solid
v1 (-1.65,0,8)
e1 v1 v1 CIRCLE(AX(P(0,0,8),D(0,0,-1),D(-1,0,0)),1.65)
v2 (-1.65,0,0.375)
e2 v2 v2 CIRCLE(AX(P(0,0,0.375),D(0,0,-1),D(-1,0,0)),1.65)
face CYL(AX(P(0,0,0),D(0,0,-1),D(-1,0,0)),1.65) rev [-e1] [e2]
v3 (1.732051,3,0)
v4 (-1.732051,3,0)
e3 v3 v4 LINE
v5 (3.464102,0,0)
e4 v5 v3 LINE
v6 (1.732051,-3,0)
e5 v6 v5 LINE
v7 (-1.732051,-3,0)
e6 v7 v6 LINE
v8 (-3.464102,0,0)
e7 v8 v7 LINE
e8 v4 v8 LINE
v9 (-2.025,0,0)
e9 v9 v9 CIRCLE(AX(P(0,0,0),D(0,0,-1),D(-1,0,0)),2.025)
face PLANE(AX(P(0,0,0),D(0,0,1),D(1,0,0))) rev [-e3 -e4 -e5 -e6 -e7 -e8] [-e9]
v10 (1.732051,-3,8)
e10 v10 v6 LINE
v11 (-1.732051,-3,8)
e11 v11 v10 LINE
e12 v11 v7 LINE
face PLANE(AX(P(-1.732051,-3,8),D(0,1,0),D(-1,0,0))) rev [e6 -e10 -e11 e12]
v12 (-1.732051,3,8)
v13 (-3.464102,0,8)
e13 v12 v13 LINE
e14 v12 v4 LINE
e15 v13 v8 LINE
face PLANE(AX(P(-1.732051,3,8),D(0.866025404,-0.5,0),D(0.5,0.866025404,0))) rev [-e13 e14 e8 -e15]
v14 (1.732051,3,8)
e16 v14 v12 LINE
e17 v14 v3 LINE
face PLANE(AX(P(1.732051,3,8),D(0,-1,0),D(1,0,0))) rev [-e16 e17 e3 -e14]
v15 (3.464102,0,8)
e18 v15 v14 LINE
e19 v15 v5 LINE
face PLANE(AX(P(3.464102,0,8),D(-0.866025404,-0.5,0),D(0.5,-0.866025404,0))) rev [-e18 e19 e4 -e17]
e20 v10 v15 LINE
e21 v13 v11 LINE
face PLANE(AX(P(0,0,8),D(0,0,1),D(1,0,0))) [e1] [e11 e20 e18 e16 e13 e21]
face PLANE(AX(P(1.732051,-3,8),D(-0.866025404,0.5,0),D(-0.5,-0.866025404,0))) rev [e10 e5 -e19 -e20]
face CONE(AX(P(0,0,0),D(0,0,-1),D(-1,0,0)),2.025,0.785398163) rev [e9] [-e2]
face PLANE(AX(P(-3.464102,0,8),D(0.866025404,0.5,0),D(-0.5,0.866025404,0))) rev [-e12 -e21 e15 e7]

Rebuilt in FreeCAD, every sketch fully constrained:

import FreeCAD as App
import Part
import Sketcher
Q = App.Units.Quantity


def add_polygon(sketch, points):
    """Adds a closed chain of lines whose ends are joined by coincident constraints."""
    first, n = sketch.GeometryCount, len(points)
    for a, b in zip(points, points[1:] + points[:1]):
        sketch.addGeometry(Part.LineSegment(App.Vector(*a, 0), App.Vector(*b, 0)), False)
    for i in range(n):
        sketch.addConstraint(Sketcher.Constraint("Coincident", first + i, 2, first + (i + 1) % n, 1))

doc = App.newDocument("Part")
body = doc.addObject("PartDesign::Body", "Body")

# Sketch on XY plane
sketch1 = body.newObject("Sketcher::SketchObject", "Sketch")
sketch1.AttachmentSupport = (doc.getObject("XY_Plane"), [""])
sketch1.MapMode = "FlatFace"
add_polygon(sketch1, [(3.5, 0), (1.7, 3), (-1.7, 3), (-3.5, 0), (-1.7, -3), (1.7, -3)])  # lines 0-5
sketch1.addConstraint(Sketcher.Constraint("Horizontal", 1))
sketch1.addConstraint(Sketcher.Constraint("Horizontal", 4))
sketch1.addConstraint(Sketcher.Constraint("Symmetric", 0, 2, 3, 2, -1, 1))
sketch1.addConstraint(Sketcher.Constraint("Symmetric", 2, 2, 5, 2, -1, 1))
sketch1.addConstraint(Sketcher.Constraint("PointOnObject", 2, 2, -1))
sketch1.addConstraint(Sketcher.Constraint("Parallel", 2, 5))
sketch1.addConstraint(Sketcher.Constraint("Vertical", 1, 2, 3, 2))
sketch1.addConstraint(Sketcher.Constraint("Angle", 0, Q("120 deg")))
sketch1.addConstraint(Sketcher.Constraint("DistanceY", -1, 1, 0, 2, 3.0))
sketch1.addConstraint(Sketcher.Constraint("DistanceX", 1, 2, 1, 1, 3.464102))
pad1 = body.newObject("PartDesign::Pad", "Pad")
pad1.Profile = sketch1
pad1.Length = 8

# Sketch on XY plane
sketch2 = body.newObject("Sketcher::SketchObject", "Sketch001")
sketch2.AttachmentSupport = (doc.getObject("XY_Plane"), [""])
sketch2.MapMode = "FlatFace"
sketch2.addGeometry(Part.Circle(App.Vector(0, 0, 0), App.Vector(0, 0, 1), 1.6), False)
sketch2.addConstraint(Sketcher.Constraint("Coincident", 0, 3, -1, 1))
sketch2.addConstraint(Sketcher.Constraint("Diameter", 0, 3.3))
doc.recompute()
hole = body.newObject("PartDesign::Hole", "Hole")
hole.Profile = sketch2
hole.ThreadType = "None"
hole.Diameter = 3.3
hole.DepthType = "ThroughAll"
hole.HoleCutType = "Countersink"
hole.HoleCutDiameter = 4.05
hole.HoleCutCountersinkAngle = 90
hole.Reversed = True

doc.recompute()
